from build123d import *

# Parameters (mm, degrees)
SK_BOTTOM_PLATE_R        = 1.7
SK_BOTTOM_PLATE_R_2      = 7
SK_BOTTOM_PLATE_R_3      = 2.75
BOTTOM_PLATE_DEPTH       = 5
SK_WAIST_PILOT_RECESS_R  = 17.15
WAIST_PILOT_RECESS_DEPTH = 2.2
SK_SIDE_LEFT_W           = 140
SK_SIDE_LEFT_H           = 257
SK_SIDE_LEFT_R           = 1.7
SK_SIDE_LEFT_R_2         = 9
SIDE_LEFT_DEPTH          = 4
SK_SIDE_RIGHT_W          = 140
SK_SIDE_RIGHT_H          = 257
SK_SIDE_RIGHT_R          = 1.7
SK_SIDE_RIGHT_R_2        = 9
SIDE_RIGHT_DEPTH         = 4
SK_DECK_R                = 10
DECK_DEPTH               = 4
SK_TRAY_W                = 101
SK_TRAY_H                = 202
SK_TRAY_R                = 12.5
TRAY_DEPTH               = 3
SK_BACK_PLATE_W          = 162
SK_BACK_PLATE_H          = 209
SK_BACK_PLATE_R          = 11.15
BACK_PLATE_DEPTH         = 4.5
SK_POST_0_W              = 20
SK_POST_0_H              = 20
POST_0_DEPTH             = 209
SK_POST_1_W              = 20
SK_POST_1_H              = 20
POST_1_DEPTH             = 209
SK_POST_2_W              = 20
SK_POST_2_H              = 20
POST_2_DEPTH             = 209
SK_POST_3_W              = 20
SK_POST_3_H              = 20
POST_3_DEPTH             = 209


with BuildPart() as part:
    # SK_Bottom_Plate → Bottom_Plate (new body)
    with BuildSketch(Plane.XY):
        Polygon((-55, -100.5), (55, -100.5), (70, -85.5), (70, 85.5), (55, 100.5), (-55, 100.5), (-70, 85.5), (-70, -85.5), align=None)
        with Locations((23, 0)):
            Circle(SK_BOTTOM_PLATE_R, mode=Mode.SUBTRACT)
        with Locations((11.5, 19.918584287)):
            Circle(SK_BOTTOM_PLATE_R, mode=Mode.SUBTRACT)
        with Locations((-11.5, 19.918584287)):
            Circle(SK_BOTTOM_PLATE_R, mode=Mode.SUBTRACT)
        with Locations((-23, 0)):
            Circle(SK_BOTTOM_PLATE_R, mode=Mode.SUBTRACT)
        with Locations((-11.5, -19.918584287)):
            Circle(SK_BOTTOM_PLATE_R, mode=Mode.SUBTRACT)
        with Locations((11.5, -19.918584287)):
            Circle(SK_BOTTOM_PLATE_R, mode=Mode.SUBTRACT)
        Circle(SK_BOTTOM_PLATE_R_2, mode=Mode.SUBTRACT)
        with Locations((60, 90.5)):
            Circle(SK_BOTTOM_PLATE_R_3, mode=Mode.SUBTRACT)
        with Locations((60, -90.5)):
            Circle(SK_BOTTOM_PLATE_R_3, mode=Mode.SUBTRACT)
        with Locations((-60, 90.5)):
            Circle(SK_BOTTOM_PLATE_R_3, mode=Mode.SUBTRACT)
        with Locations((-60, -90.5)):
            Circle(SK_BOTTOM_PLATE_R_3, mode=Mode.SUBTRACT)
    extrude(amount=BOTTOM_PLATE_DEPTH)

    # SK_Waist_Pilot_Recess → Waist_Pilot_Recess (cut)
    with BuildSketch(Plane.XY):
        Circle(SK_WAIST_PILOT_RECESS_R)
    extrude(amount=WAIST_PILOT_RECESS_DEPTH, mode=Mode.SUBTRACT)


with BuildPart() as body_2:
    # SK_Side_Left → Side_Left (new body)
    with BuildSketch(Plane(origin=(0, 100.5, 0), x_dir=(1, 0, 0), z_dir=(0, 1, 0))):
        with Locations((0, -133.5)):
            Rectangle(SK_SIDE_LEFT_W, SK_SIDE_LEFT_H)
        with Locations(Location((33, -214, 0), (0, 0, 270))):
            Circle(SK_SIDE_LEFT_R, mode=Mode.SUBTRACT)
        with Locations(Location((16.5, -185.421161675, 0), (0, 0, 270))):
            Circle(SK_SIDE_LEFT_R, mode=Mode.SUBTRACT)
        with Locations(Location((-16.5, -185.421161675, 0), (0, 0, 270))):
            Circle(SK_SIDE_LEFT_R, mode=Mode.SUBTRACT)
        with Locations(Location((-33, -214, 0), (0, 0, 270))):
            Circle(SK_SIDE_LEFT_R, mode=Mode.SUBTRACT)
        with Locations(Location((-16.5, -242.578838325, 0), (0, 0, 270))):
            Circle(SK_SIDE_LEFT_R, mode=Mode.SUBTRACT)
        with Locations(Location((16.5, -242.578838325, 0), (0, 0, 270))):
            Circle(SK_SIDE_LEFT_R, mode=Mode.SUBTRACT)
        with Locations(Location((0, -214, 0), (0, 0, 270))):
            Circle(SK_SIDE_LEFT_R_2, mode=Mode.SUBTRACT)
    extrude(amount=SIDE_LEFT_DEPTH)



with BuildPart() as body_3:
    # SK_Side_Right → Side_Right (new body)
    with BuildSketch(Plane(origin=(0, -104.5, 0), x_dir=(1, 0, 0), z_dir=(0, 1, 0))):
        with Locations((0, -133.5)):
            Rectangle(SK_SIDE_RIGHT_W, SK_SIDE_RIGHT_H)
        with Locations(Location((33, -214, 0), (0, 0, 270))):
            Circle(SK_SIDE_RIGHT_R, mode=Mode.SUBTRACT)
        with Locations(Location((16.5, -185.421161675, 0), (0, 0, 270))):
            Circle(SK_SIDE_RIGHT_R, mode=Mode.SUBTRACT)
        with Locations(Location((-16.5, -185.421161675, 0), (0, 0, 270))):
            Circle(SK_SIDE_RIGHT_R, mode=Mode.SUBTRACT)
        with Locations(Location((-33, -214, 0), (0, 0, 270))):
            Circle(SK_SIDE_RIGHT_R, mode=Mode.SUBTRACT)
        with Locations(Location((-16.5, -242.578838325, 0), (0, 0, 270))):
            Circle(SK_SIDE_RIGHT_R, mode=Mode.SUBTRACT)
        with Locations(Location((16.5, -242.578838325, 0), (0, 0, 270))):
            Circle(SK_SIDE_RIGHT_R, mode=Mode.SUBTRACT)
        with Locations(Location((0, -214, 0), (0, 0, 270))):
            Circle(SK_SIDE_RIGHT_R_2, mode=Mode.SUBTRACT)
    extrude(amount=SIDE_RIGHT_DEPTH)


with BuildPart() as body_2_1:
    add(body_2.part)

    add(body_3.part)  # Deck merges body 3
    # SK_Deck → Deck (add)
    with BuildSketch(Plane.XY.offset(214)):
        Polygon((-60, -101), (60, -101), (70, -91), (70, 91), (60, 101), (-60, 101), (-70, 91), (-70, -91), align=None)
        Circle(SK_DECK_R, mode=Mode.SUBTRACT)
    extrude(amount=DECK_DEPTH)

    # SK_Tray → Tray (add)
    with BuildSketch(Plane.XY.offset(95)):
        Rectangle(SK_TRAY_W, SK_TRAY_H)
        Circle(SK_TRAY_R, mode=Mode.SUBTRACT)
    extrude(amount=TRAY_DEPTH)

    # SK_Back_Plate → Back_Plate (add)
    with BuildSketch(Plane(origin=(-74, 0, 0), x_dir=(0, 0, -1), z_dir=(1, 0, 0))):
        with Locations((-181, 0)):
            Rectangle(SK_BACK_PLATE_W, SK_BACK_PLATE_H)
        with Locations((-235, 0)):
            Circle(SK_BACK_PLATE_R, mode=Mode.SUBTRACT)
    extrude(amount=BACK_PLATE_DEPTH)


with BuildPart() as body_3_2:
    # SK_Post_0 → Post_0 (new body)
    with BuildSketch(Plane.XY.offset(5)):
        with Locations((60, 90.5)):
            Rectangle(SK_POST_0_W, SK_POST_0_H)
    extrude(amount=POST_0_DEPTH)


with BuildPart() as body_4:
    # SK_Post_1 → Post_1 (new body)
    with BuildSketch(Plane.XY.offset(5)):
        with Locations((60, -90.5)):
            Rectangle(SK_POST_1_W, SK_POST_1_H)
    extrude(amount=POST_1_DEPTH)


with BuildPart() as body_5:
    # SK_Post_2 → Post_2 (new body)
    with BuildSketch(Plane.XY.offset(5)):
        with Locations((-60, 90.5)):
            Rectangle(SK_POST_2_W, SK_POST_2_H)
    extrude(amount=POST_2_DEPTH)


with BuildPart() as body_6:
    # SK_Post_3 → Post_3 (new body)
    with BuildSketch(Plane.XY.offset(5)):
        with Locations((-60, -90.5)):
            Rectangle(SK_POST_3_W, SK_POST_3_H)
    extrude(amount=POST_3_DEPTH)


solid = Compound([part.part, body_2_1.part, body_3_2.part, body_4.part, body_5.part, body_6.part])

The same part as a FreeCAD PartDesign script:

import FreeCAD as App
import Part
import Sketcher


def add_polygon(sketch, points):
    """Adds a closed chain of lines whose ends are joined by coincident constraints."""
    first, n = sketch.GeometryCount, len(points)
    for a, b in zip(points, points[1:] + points[:1]):
        sketch.addGeometry(Part.LineSegment(App.Vector(*a, 0), App.Vector(*b, 0)), False)
    for i in range(n):
        sketch.addConstraint(Sketcher.Constraint("Coincident", first + i, 2, first + (i + 1) % n, 1))

doc = App.newDocument("Part")
body = doc.addObject("PartDesign::Body", "Body")

# Sketch on XY plane
sketch1 = body.newObject("Sketcher::SketchObject", "Sketch")
sketch1.AttachmentSupport = (doc.getObject("XY_Plane"), [""])
sketch1.MapMode = "FlatFace"
add_polygon(sketch1, [(-55, -100.5), (55, -100.5), (70, -85.5), (70, 85.5), (55, 100.5), (-55, 100.5), (-70, 85.5), (-70, -85.5)])  # lines 0-7
sketch1.addGeometry(Part.Circle(App.Vector(-60, -90.5, 0), App.Vector(0, 0, 1), 2.8), False)  # 8
sketch1.addGeometry(Part.Circle(App.Vector(-11.5, -19.9, 0), App.Vector(0, 0, 1), 1.7), False)  # 9
sketch1.addGeometry(Part.Circle(App.Vector(60, -90.5, 0), App.Vector(0, 0, 1), 2.8), False)  # 10
sketch1.addGeometry(Part.Circle(App.Vector(11.5, -19.9, 0), App.Vector(0, 0, 1), 1.7), False)  # 11
sketch1.addGeometry(Part.Circle(App.Vector(-23, 0, 0), App.Vector(0, 0, 1), 1.7), False)  # 12
sketch1.addGeometry(Part.Circle(App.Vector(-11.5, 19.9, 0), App.Vector(0, 0, 1), 1.7), False)  # 13
sketch1.addGeometry(Part.Circle(App.Vector(-60, 90.5, 0), App.Vector(0, 0, 1), 2.8), False)  # 14
sketch1.addGeometry(Part.Circle(App.Vector(0, 0, 0), App.Vector(0, 0, 1), 7), False)  # 15
sketch1.addGeometry(Part.Circle(App.Vector(11.5, 19.9, 0), App.Vector(0, 0, 1), 1.7), False)  # 16
sketch1.addGeometry(Part.Circle(App.Vector(23, 0, 0), App.Vector(0, 0, 1), 1.7), False)  # 17
sketch1.addGeometry(Part.Circle(App.Vector(60, 90.5, 0), App.Vector(0, 0, 1), 2.8), False)  # 18
sketch1.addConstraint([
    Sketcher.Constraint("Horizontal", 0),
    Sketcher.Constraint("Vertical", 2),
    Sketcher.Constraint("Horizontal", 4),
    Sketcher.Constraint("Vertical", 6),
    Sketcher.Constraint("Coincident", 15, 3, -1, 1),
    Sketcher.Constraint("Equal", 8, 10),
    Sketcher.Constraint("Equal", 9, 11),
    Sketcher.Constraint("Equal", 11, 12),
    Sketcher.Constraint("Equal", 12, 13),
    Sketcher.Constraint("Equal", 10, 14),
    Sketcher.Constraint("Equal", 13, 16),
    Sketcher.Constraint("Equal", 16, 17),
    Sketcher.Constraint("Equal", 14, 18),
    Sketcher.Constraint("Symmetric", 11, 3, 13, 3, -1, 1),
    Sketcher.Constraint("Symmetric", 10, 3, 14, 3, -1, 1),
    Sketcher.Constraint("Symmetric", 9, 3, 16, 3, -1, 1),
    Sketcher.Constraint("Symmetric", 12, 3, 17, 3, -1, 1),
    Sketcher.Constraint("Symmetric", 8, 3, 18, 3, -1, 1),
    Sketcher.Constraint("Symmetric", 0, 2, 4, 2, -1, 1),
    Sketcher.Constraint("Symmetric", 1, 2, 5, 2, -1, 1),
    Sketcher.Constraint("Symmetric", 8, 3, 10, 3, -2),
    Sketcher.Constraint("Symmetric", 9, 3, 11, 3, -2),
    Sketcher.Constraint("PointOnObject", 12, 3, -1),
    Sketcher.Constraint("Perpendicular", 1, 3),
    Sketcher.Constraint("Perpendicular", 5, 7),
    Sketcher.Constraint("Horizontal", 2, 2, 5, 2),
    Sketcher.Constraint("Horizontal", 1, 2, 6, 2),
    Sketcher.Constraint("Vertical", 0, 2, 3, 2),
    Sketcher.Constraint("Diameter", 15, 14.0),
    Sketcher.Constraint("Diameter", 8, 5.5),
    Sketcher.Constraint("Diameter", 9, 3.4),
    Sketcher.Constraint("DistanceX", 0, 1, 0, 2, 110.0),
    Sketcher.Constraint("DistanceY", 2, 1, 2, 2, 171.0),
    Sketcher.Constraint("DistanceX", 8, 3, -1, 1, 60.0),
    Sketcher.Constraint("DistanceX", 12, 3, -1, 1, 23.0),
    Sketcher.Constraint("DistanceX", -1, 1, 1, 2, 70.0),
    Sketcher.Constraint("DistanceX", 9, 3, 11, 3, 23.0),
    Sketcher.Constraint("DistanceY", 8, 3, 14, 3, 181.0),
    Sketcher.Constraint("DistanceY", 9, 3, 13, 3, 39.837169),
])
pad1 = body.newObject("PartDesign::Pad", "Pad")
pad1.Profile = sketch1
pad1.Length = 5

# Sketch on XY plane
sketch2 = body.newObject("Sketcher::SketchObject", "Sketch001")
sketch2.AttachmentSupport = (doc.getObject("XY_Plane"), [""])
sketch2.MapMode = "FlatFace"
sketch2.addGeometry(Part.Circle(App.Vector(0, 0, 0), App.Vector(0, 0, 1), 17), False)
sketch2.addConstraint([
    Sketcher.Constraint("Coincident", 0, 3, -1, 1),
    Sketcher.Constraint("Diameter", 0, 34.3),
])
pocket1 = body.newObject("PartDesign::Pocket", "Pocket")
pocket1.Profile = sketch2
pocket1.Length = 2.2
pocket1.Reversed = True
body2 = doc.addObject("PartDesign::Body", "Body001")

# Sketch on XZ plane
sketch3 = body2.newObject("Sketcher::SketchObject", "Sketch002")
sketch3.AttachmentSupport = (doc.getObject("XZ_Plane001"), [""])
sketch3.MapMode = "FlatFace"
sketch3.AttachmentOffset = App.Placement(App.Vector(0, 0, -100.5), App.Rotation())
add_polygon(sketch3, [(-70, 5), (-70, 262), (70, 262), (70, 5)])  # lines 0-3
sketch3.addGeometry(Part.Circle(App.Vector(-16.5, 242.6, 0), App.Vector(0, 0, 1), 1.7), False)  # 4
sketch3.addGeometry(Part.Circle(App.Vector(16.5, 242.6, 0), App.Vector(0, 0, 1), 1.7), False)  # 5
sketch3.addGeometry(Part.Circle(App.Vector(-33, 214, 0), App.Vector(0, 0, 1), 1.7), False)  # 6
sketch3.addGeometry(Part.Circle(App.Vector(-16.5, 185.4, 0), App.Vector(0, 0, 1), 1.7), False)  # 7
sketch3.addGeometry(Part.Circle(App.Vector(0, 214, 0), App.Vector(0, 0, 1), 9), False)  # 8
sketch3.addGeometry(Part.Circle(App.Vector(33, 214, 0), App.Vector(0, 0, 1), 1.7), False)  # 9
sketch3.addGeometry(Part.Circle(App.Vector(16.5, 185.4, 0), App.Vector(0, 0, 1), 1.7), False)  # 10
sketch3.addConstraint([
    Sketcher.Constraint("Vertical", 0),
    Sketcher.Constraint("Horizontal", 1),
    Sketcher.Constraint("Vertical", 2),
    Sketcher.Constraint("Horizontal", 3),
    Sketcher.Constraint("Equal", 4, 5),
    Sketcher.Constraint("Equal", 5, 6),
    Sketcher.Constraint("Equal", 6, 7),
    Sketcher.Constraint("Equal", 7, 9),
    Sketcher.Constraint("Equal", 9, 10),
    Sketcher.Constraint("Symmetric", 4, 3, 5, 3, -2),
    Sketcher.Constraint("Symmetric", 6, 3, 9, 3, -2),
    Sketcher.Constraint("Symmetric", 7, 3, 10, 3, -2),
    Sketcher.Constraint("PointOnObject", 8, 3, -2),
    Sketcher.Constraint("Horizontal", 6, 3, 8, 3),
    Sketcher.Constraint("Vertical", 4, 3, 7, 3),
    Sketcher.Constraint("Diameter", 8, 18.0),
    Sketcher.Constraint("Diameter", 4, 3.4),
    Sketcher.Constraint("DistanceX", 1, 1, 1, 2, 140.0),
    Sketcher.Constraint("DistanceY", 0, 1, 0, 2, 257.0),
    Sketcher.Constraint("DistanceX", 6, 3, -1, 1, 33.0),
    Sketcher.Constraint("DistanceY", -1, 1, 6, 3, 214.0),
    Sketcher.Constraint("DistanceX", 0, 2, -1, 1, 70.0),
    Sketcher.Constraint("DistanceY", -1, 1, 0, 2, 262.0),
    Sketcher.Constraint("DistanceX", 4, 3, 5, 3, 33.0),
    Sketcher.Constraint("DistanceY", -1, 1, 4, 3, 242.578838),
    Sketcher.Constraint("DistanceY", -1, 1, 7, 3, 185.421162),
])
pad2 = body2.newObject("PartDesign::Pad", "Pad001")
pad2.Profile = sketch3
pad2.Length = 4
pad2.Reversed = True
body3 = doc.addObject("PartDesign::Body", "Body002")

# Sketch on XZ plane
sketch4 = body3.newObject("Sketcher::SketchObject", "Sketch003")
sketch4.AttachmentSupport = (doc.getObject("XZ_Plane002"), [""])
sketch4.MapMode = "FlatFace"
sketch4.AttachmentOffset = App.Placement(App.Vector(0, 0, 104.5), App.Rotation())
add_polygon(sketch4, [(-70, 5), (-70, 262), (70, 262), (70, 5)])  # lines 0-3
sketch4.addGeometry(Part.Circle(App.Vector(-16.5, 242.6, 0), App.Vector(0, 0, 1), 1.7), False)  # 4
sketch4.addGeometry(Part.Circle(App.Vector(16.5, 242.6, 0), App.Vector(0, 0, 1), 1.7), False)  # 5
sketch4.addGeometry(Part.Circle(App.Vector(-33, 214, 0), App.Vector(0, 0, 1), 1.7), False)  # 6
sketch4.addGeometry(Part.Circle(App.Vector(-16.5, 185.4, 0), App.Vector(0, 0, 1), 1.7), False)  # 7
sketch4.addGeometry(Part.Circle(App.Vector(0, 214, 0), App.Vector(0, 0, 1), 9), False)  # 8
sketch4.addGeometry(Part.Circle(App.Vector(33, 214, 0), App.Vector(0, 0, 1), 1.7), False)  # 9
sketch4.addGeometry(Part.Circle(App.Vector(16.5, 185.4, 0), App.Vector(0, 0, 1), 1.7), False)  # 10
sketch4.addConstraint([
    Sketcher.Constraint("Vertical", 0),
    Sketcher.Constraint("Horizontal", 1),
    Sketcher.Constraint("Vertical", 2),
    Sketcher.Constraint("Horizontal", 3),
    Sketcher.Constraint("Equal", 4, 5),
    Sketcher.Constraint("Equal", 5, 6),
    Sketcher.Constraint("Equal", 6, 7),
    Sketcher.Constraint("Equal", 7, 9),
    Sketcher.Constraint("Equal", 9, 10),
    Sketcher.Constraint("Symmetric", 4, 3, 5, 3, -2),
    Sketcher.Constraint("Symmetric", 6, 3, 9, 3, -2),
    Sketcher.Constraint("Symmetric", 7, 3, 10, 3, -2),
    Sketcher.Constraint("PointOnObject", 8, 3, -2),
    Sketcher.Constraint("Horizontal", 6, 3, 8, 3),
    Sketcher.Constraint("Vertical", 4, 3, 7, 3),
    Sketcher.Constraint("Diameter", 8, 18.0),
    Sketcher.Constraint("Diameter", 4, 3.4),
    Sketcher.Constraint("DistanceX", 1, 1, 1, 2, 140.0),
    Sketcher.Constraint("DistanceY", 0, 1, 0, 2, 257.0),
    Sketcher.Constraint("DistanceX", 6, 3, -1, 1, 33.0),
    Sketcher.Constraint("DistanceY", -1, 1, 6, 3, 214.0),
    Sketcher.Constraint("DistanceX", 0, 2, -1, 1, 70.0),
    Sketcher.Constraint("DistanceY", -1, 1, 0, 2, 262.0),
    Sketcher.Constraint("DistanceX", 4, 3, 5, 3, 33.0),
    Sketcher.Constraint("DistanceY", -1, 1, 4, 3, 242.578838),
    Sketcher.Constraint("DistanceY", -1, 1, 7, 3, 185.421162),
])
pad3 = body3.newObject("PartDesign::Pad", "Pad002")
pad3.Profile = sketch4
pad3.Length = 4
pad3.Reversed = True
body2.AllowCompound = True
doc.recompute()

boolean = body2.newObject("PartDesign::Boolean", "Boolean")
boolean.Type = "Fuse"
boolean.addObjects([body3])

# Sketch on XY plane
sketch5 = body2.newObject("Sketcher::SketchObject", "Sketch004")
sketch5.AttachmentSupport = (doc.getObject("XY_Plane001"), [""])
sketch5.MapMode = "FlatFace"
sketch5.AttachmentOffset = App.Placement(App.Vector(0, 0, 214), App.Rotation())
add_polygon(sketch5, [(-60, -101), (60, -101), (70, -91), (70, 91), (60, 101), (-60, 101), (-70, 91), (-70, -91)])  # lines 0-7
sketch5.addGeometry(Part.Circle(App.Vector(0, 0, 0), App.Vector(0, 0, 1), 10), False)  # 8
sketch5.addConstraint([
    Sketcher.Constraint("Horizontal", 0),
    Sketcher.Constraint("Vertical", 2),
    Sketcher.Constraint("Horizontal", 4),
    Sketcher.Constraint("Vertical", 6),
    Sketcher.Constraint("Coincident", 8, 3, -1, 1),
    Sketcher.Constraint("Symmetric", 0, 2, 4, 2, -1, 1),
    Sketcher.Constraint("Symmetric", 1, 2, 5, 2, -1, 1),
    Sketcher.Constraint("Perpendicular", 1, 3),
    Sketcher.Constraint("Perpendicular", 5, 7),
    Sketcher.Constraint("Horizontal", 2, 2, 5, 2),
    Sketcher.Constraint("Horizontal", 1, 2, 6, 2),
    Sketcher.Constraint("Vertical", 0, 2, 3, 2),
    Sketcher.Constraint("Diameter", 8, 20.0),
    Sketcher.Constraint("DistanceX", 0, 1, 0, 2, 120.0),
    Sketcher.Constraint("DistanceY", 2, 1, 2, 2, 182.0),
    Sketcher.Constraint("DistanceY", 0, 2, -1, 1, 101.0),
])
pad4 = body2.newObject("PartDesign::Pad", "Pad003")
pad4.Profile = sketch5
pad4.Length = 4

# Sketch on XY plane
sketch6 = body2.newObject("Sketcher::SketchObject", "Sketch005")
sketch6.AttachmentSupport = (doc.getObject("XY_Plane001"), [""])
sketch6.MapMode = "FlatFace"
sketch6.AttachmentOffset = App.Placement(App.Vector(0, 0, 95), App.Rotation())
add_polygon(sketch6, [(-50, 101), (-50, -101), (50, -101), (50, 101)])  # lines 0-3
sketch6.addGeometry(Part.Circle(App.Vector(0, 0, 0), App.Vector(0, 0, 1), 12), False)  # 4
sketch6.addConstraint([
    Sketcher.Constraint("Vertical", 0),
    Sketcher.Constraint("Horizontal", 1),
    Sketcher.Constraint("Vertical", 2),
    Sketcher.Constraint("Horizontal", 3),
    Sketcher.Constraint("Coincident", 4, 3, -1, 1),
    Sketcher.Constraint("Symmetric", 0, 2, 2, 2, -1, 1),
    Sketcher.Constraint("Diameter", 4, 25.0),
    Sketcher.Constraint("DistanceX", 1, 1, 1, 2, 101.0),
    Sketcher.Constraint("DistanceY", 0, 2, 0, 1, 202.0),
])
pad5 = body2.newObject("PartDesign::Pad", "Pad004")
pad5.Profile = sketch6
pad5.Length = 3

# Sketch on YZ plane
sketch7 = body2.newObject("Sketcher::SketchObject", "Sketch006")
sketch7.AttachmentSupport = (doc.getObject("YZ_Plane001"), [""])
sketch7.MapMode = "FlatFace"
sketch7.AttachmentOffset = App.Placement(App.Vector(0, 0, -74), App.Rotation())
add_polygon(sketch7, [(104, 262), (-104, 262), (-104, 100), (104, 100)])  # lines 0-3
sketch7.addGeometry(Part.Circle(App.Vector(0, 235, 0), App.Vector(0, 0, 1), 11), False)  # 4
sketch7.addConstraint([
    Sketcher.Constraint("Horizontal", 0),
    Sketcher.Constraint("Vertical", 1),
    Sketcher.Constraint("Horizontal", 2),
    Sketcher.Constraint("Vertical", 3),
    Sketcher.Constraint("PointOnObject", 4, 3, -2),
    Sketcher.Constraint("Diameter", 4, 22.3),
    Sketcher.Constraint("DistanceX", 0, 2, 0, 1, 209.0),
    Sketcher.Constraint("DistanceY", 1, 2, 1, 1, 162.0),
    Sketcher.Constraint("DistanceY", -1, 1, 4, 3, 235.0),
    Sketcher.Constraint("DistanceY", -1, 1, 0, 2, 262.0),
    Sketcher.Constraint("DistanceX", 0, 2, -1, 1, 104.5),
])
pad6 = body2.newObject("PartDesign::Pad", "Pad005")
pad6.Profile = sketch7
pad6.Length = 4.5
body4 = doc.addObject("PartDesign::Body", "Body003")

# Sketch on XY plane
sketch8 = body4.newObject("Sketcher::SketchObject", "Sketch007")
sketch8.AttachmentSupport = (doc.getObject("XY_Plane003"), [""])
sketch8.MapMode = "FlatFace"
sketch8.AttachmentOffset = App.Placement(App.Vector(0, 0, 5), App.Rotation())
add_polygon(sketch8, [(50, 100), (50, 80), (70, 80), (70, 100)])  # lines 0-3
sketch8.addConstraint([
    Sketcher.Constraint("Vertical", 0),
    Sketcher.Constraint("Horizontal", 1),
    Sketcher.Constraint("Vertical", 2),
    Sketcher.Constraint("Horizontal", 3),
    Sketcher.Constraint("Equal", 3, 0),
    Sketcher.Constraint("DistanceX", 1, 1, 1, 2, 20.0),
    Sketcher.Constraint("DistanceX", -1, 1, 0, 2, 50.0),
    Sketcher.Constraint("DistanceY", -1, 1, 0, 2, 80.5),
])
pad7 = body4.newObject("PartDesign::Pad", "Pad006")
pad7.Profile = sketch8
pad7.Length = 209
body5 = doc.addObject("PartDesign::Body", "Body004")

# Sketch on XY plane
sketch9 = body5.newObject("Sketcher::SketchObject", "Sketch008")
sketch9.AttachmentSupport = (doc.getObject("XY_Plane004"), [""])
sketch9.MapMode = "FlatFace"
sketch9.AttachmentOffset = App.Placement(App.Vector(0, 0, 5), App.Rotation())
add_polygon(sketch9, [(50, -80), (50, -100), (70, -100), (70, -80)])  # lines 0-3
sketch9.addConstraint([
    Sketcher.Constraint("Vertical", 0),
    Sketcher.Constraint("Horizontal", 1),
    Sketcher.Constraint("Vertical", 2),
    Sketcher.Constraint("Horizontal", 3),
    Sketcher.Constraint("Equal", 3, 0),
    Sketcher.Constraint("DistanceX", 1, 1, 1, 2, 20.0),
    Sketcher.Constraint("DistanceX", -1, 1, 0, 2, 50.0),
    Sketcher.Constraint("DistanceY", 0, 2, -1, 1, 100.5),
])
pad8 = body5.newObject("PartDesign::Pad", "Pad007")
pad8.Profile = sketch9
pad8.Length = 209
body6 = doc.addObject("PartDesign::Body", "Body005")

# Sketch on XY plane
sketch10 = body6.newObject("Sketcher::SketchObject", "Sketch009")
sketch10.AttachmentSupport = (doc.getObject("XY_Plane005"), [""])
sketch10.MapMode = "FlatFace"
sketch10.AttachmentOffset = App.Placement(App.Vector(0, 0, 5), App.Rotation())
add_polygon(sketch10, [(-70, 100), (-70, 80), (-50, 80), (-50, 100)])  # lines 0-3
sketch10.addConstraint([
    Sketcher.Constraint("Vertical", 0),
    Sketcher.Constraint("Horizontal", 1),
    Sketcher.Constraint("Vertical", 2),
    Sketcher.Constraint("Horizontal", 3),
    Sketcher.Constraint("Equal", 3, 0),
    Sketcher.Constraint("DistanceX", 1, 1, 1, 2, 20.0),
    Sketcher.Constraint("DistanceX", 0, 2, -1, 1, 70.0),
    Sketcher.Constraint("DistanceY", -1, 1, 0, 2, 80.5),
])
pad9 = body6.newObject("PartDesign::Pad", "Pad008")
pad9.Profile = sketch10
pad9.Length = 209
body7 = doc.addObject("PartDesign::Body", "Body006")

# Sketch on XY plane
sketch11 = body7.newObject("Sketcher::SketchObject", "Sketch010")
sketch11.AttachmentSupport = (doc.getObject("XY_Plane006"), [""])
sketch11.MapMode = "FlatFace"
sketch11.AttachmentOffset = App.Placement(App.Vector(0, 0, 5), App.Rotation())
add_polygon(sketch11, [(-70, -80), (-70, -100), (-50, -100), (-50, -80)])  # lines 0-3
sketch11.addConstraint([
    Sketcher.Constraint("Vertical", 0),
    Sketcher.Constraint("Horizontal", 1),
    Sketcher.Constraint("Vertical", 2),
    Sketcher.Constraint("Horizontal", 3),
    Sketcher.Constraint("Equal", 3, 0),
    Sketcher.Constraint("DistanceX", 1, 1, 1, 2, 20.0),
    Sketcher.Constraint("DistanceX", 0, 2, -1, 1, 70.0),
    Sketcher.Constraint("DistanceY", 0, 2, -1, 1, 100.5),
])
pad10 = body7.newObject("PartDesign::Pad", "Pad009")
pad10.Profile = sketch11
pad10.Length = 209

doc.recompute()
